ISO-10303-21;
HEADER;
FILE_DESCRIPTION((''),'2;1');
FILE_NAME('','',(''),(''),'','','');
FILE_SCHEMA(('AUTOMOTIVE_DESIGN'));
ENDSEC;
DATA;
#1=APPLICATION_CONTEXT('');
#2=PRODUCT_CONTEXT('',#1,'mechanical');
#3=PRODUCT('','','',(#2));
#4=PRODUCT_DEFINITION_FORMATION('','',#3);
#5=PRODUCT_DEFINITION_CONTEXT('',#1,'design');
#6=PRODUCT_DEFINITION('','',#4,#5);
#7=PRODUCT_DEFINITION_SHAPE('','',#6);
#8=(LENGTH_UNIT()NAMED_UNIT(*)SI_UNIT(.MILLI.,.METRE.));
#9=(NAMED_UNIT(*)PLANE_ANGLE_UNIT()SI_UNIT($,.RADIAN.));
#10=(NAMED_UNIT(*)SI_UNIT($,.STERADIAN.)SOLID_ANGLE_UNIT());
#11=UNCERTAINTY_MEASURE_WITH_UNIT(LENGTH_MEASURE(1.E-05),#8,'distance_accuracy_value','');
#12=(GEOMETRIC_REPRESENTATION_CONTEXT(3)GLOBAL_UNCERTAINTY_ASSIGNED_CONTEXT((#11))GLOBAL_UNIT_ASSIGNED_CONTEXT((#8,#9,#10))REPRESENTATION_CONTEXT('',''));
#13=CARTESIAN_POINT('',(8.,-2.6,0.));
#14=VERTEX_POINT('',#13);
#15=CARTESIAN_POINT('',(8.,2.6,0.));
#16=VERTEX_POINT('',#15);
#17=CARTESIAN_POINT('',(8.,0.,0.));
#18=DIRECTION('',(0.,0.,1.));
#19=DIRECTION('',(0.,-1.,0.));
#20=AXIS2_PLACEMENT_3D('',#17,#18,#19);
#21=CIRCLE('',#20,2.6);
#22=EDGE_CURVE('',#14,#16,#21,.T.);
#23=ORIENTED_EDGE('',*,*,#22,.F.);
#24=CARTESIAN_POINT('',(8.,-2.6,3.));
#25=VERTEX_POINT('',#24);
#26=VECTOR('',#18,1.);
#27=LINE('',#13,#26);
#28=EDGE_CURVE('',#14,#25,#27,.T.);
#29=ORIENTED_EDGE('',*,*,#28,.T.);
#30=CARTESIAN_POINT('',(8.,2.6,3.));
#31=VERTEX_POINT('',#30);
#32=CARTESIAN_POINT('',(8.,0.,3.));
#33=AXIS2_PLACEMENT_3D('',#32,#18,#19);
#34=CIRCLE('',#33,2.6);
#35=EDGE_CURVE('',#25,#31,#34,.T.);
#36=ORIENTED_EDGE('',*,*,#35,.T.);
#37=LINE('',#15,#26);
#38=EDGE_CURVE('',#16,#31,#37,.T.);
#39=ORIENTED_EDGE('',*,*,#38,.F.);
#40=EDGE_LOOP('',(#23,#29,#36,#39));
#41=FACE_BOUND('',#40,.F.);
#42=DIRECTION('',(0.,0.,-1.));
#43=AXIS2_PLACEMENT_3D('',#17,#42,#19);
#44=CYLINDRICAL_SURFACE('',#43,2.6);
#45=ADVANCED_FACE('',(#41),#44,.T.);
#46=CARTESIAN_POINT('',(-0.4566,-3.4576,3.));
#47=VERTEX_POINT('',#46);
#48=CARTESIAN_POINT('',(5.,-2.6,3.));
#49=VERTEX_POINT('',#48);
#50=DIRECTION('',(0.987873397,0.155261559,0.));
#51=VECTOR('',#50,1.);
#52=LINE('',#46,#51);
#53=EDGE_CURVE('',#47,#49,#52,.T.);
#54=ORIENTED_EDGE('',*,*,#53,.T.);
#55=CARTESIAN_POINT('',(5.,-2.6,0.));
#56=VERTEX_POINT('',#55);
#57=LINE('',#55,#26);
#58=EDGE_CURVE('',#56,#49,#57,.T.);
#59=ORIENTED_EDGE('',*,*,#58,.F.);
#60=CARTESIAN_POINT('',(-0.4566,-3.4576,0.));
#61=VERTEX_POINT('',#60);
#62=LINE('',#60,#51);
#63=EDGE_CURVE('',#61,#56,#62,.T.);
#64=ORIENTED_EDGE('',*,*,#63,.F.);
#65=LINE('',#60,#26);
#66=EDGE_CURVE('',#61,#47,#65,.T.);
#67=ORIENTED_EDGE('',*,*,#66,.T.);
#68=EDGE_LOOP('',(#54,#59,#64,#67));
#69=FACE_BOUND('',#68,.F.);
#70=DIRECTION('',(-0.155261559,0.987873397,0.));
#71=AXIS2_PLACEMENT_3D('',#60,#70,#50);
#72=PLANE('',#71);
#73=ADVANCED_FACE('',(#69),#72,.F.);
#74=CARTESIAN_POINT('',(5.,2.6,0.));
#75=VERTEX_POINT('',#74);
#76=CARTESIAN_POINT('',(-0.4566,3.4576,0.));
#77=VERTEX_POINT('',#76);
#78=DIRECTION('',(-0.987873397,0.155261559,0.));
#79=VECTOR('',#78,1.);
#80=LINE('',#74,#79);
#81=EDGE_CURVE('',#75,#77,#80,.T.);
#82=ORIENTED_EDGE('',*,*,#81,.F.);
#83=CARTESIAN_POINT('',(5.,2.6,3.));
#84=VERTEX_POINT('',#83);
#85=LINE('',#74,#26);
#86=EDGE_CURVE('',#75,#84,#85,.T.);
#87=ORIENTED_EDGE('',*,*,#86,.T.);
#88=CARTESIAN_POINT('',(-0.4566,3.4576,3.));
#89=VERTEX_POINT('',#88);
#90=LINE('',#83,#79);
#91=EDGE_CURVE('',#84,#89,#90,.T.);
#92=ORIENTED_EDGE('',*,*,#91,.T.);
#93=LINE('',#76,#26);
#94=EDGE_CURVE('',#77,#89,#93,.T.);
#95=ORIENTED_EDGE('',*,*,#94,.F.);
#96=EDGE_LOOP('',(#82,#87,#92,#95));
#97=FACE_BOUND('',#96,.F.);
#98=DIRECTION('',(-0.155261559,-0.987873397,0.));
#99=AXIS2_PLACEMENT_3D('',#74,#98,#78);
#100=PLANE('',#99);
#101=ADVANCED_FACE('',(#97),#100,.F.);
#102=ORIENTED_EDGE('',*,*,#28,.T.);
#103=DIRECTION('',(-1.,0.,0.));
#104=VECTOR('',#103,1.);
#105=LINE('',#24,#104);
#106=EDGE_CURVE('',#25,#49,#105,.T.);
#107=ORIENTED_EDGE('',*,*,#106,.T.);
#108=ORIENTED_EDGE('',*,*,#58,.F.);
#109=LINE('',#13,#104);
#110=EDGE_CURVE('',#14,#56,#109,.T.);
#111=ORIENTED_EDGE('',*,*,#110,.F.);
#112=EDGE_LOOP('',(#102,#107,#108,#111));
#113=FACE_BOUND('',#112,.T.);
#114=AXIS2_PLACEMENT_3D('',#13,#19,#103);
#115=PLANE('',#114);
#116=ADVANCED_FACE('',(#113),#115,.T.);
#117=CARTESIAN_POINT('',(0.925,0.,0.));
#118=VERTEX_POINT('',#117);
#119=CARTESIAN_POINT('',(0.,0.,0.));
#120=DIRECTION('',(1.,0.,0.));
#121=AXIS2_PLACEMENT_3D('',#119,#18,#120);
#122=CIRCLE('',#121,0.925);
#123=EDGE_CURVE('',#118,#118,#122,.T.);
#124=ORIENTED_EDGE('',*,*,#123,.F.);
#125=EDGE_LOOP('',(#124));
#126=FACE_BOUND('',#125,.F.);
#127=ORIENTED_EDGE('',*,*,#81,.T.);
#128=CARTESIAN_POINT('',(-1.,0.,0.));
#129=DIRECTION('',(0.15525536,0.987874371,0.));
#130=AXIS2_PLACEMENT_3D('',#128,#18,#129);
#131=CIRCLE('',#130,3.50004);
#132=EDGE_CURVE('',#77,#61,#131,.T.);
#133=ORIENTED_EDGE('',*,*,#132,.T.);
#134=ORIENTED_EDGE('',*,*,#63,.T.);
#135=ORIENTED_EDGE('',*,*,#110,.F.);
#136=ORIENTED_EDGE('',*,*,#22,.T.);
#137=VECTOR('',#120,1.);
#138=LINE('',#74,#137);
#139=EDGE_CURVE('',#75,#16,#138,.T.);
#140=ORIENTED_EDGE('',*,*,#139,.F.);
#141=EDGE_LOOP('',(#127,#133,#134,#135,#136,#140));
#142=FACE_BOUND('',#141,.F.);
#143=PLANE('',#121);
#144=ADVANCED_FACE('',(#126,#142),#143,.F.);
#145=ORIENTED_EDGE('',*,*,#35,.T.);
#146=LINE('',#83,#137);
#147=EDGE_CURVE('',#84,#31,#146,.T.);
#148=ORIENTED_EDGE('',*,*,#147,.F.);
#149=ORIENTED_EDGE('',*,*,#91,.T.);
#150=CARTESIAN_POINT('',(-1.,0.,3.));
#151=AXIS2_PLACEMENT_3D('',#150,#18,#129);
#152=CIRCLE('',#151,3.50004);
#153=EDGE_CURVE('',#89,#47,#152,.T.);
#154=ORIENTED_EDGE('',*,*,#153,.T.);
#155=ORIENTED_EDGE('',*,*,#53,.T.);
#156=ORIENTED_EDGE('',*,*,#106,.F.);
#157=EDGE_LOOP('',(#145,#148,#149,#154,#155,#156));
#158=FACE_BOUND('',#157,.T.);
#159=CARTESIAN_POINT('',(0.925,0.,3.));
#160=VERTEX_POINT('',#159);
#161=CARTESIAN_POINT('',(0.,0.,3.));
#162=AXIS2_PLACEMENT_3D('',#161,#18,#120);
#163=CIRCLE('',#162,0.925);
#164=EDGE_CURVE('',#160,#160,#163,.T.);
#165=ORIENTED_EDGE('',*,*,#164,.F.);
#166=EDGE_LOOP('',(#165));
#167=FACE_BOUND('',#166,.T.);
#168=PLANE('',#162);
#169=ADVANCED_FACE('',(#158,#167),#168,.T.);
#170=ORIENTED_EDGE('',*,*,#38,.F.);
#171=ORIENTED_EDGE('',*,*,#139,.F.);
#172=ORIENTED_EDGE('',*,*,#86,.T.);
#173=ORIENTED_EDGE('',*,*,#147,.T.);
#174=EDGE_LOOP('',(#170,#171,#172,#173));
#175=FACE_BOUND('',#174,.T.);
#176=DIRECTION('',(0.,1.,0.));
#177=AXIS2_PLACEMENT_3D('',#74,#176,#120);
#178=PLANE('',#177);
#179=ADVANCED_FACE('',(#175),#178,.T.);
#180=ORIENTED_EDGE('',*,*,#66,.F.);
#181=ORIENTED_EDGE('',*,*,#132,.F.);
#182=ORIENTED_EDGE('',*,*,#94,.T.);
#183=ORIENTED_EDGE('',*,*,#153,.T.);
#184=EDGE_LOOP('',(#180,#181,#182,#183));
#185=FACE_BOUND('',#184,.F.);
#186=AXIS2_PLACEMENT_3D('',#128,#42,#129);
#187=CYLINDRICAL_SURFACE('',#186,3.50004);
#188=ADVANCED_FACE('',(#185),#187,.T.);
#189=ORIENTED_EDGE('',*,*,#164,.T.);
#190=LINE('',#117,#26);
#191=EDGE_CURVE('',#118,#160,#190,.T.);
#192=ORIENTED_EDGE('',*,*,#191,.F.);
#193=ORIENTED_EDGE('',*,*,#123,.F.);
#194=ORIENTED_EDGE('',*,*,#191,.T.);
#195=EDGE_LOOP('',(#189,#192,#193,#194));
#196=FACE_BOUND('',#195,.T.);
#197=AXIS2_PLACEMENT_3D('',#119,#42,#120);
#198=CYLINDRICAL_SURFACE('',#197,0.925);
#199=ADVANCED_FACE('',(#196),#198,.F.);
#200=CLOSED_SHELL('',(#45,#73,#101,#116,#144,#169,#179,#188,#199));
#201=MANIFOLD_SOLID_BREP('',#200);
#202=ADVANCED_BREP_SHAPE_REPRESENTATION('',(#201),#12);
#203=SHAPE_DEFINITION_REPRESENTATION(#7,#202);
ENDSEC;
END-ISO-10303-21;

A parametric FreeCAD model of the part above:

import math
import FreeCAD as App
import Part
import Sketcher
from FreeCAD import Vector

doc = App.newDocument("Part")
body = doc.addObject("PartDesign::Body", "Body")

# Sketch on XY plane
sketch1 = body.newObject("Sketcher::SketchObject", "Sketch")
sketch1.AttachmentSupport = (doc.getObject("XY_Plane"), [""])
sketch1.MapMode = "FlatFace"
sketch1.addGeometry(Part.LineSegment(Vector(8, 2.6, 0), Vector(5, 2.6, 0)), False)
sketch1.addGeometry(Part.LineSegment(Vector(5, 2.6, 0), Vector(-0.4566, 3.4576, 0)), False)
sketch1.addGeometry(Part.ArcOfCircle(Part.Circle(Vector(-1, 0, 0), Vector(0, 0, 1), 3.50004), math.radians(81.068393), math.radians(278.931607)), False)
sketch1.addGeometry(Part.LineSegment(Vector(-0.4566, -3.4576, 0), Vector(5, -2.6, 0)), False)
sketch1.addGeometry(Part.LineSegment(Vector(5, -2.6, 0), Vector(8, -2.6, 0)), False)
sketch1.addGeometry(Part.ArcOfCircle(Part.Circle(Vector(8, 0, 0), Vector(0, 0, 1), 2.6), math.radians(-90), math.radians(90)), False)
sketch1.addGeometry(Part.Circle(Vector(0, 0, 0), Vector(0, 0, 1), 0.925), False)
sketch1.addConstraint(Sketcher.Constraint("Coincident", 0, 2, 1, 1))
sketch1.addConstraint(Sketcher.Constraint("Tangent", 1, 2, 2, 1))
sketch1.addConstraint(Sketcher.Constraint("Tangent", 2, 2, 3, 1))
sketch1.addConstraint(Sketcher.Constraint("Coincident", 3, 2, 4, 1))
sketch1.addConstraint(Sketcher.Constraint("Tangent", 4, 2, 5, 1))
sketch1.addConstraint(Sketcher.Constraint("Tangent", 5, 2, 0, 1))
sketch1.addConstraint(Sketcher.Constraint("Horizontal", 0))
sketch1.addConstraint(Sketcher.Constraint("Horizontal", 4))
sketch1.addConstraint(Sketcher.Constraint("Coincident", 6, 3, -1, 1))
sketch1.addConstraint(Sketcher.Constraint("Symmetric", 1, 2, 2, 2, -1))
sketch1.addConstraint(Sketcher.Constraint("PointOnObject", 5, 3, -1))
sketch1.addConstraint(Sketcher.Constraint("Radius", 2, 3.5))
sketch1.addConstraint(Sketcher.Constraint("Radius", 5, 2.6))
sketch1.addConstraint(Sketcher.Constraint("Diameter", 6, 1.85))
sketch1.addConstraint(Sketcher.Constraint("DistanceX", 2, 3, -1, 1, 1.0))
sketch1.addConstraint(Sketcher.Constraint("DistanceX", -1, 1, 5, 3, 8.0))
sketch1.addConstraint(Sketcher.Constraint("DistanceX", 2, 3, 0, 2, 6.0))
pad1 = body.newObject("PartDesign::Pad", "Pad")
pad1.Profile = sketch1
pad1.Length = 3

doc.recompute()
